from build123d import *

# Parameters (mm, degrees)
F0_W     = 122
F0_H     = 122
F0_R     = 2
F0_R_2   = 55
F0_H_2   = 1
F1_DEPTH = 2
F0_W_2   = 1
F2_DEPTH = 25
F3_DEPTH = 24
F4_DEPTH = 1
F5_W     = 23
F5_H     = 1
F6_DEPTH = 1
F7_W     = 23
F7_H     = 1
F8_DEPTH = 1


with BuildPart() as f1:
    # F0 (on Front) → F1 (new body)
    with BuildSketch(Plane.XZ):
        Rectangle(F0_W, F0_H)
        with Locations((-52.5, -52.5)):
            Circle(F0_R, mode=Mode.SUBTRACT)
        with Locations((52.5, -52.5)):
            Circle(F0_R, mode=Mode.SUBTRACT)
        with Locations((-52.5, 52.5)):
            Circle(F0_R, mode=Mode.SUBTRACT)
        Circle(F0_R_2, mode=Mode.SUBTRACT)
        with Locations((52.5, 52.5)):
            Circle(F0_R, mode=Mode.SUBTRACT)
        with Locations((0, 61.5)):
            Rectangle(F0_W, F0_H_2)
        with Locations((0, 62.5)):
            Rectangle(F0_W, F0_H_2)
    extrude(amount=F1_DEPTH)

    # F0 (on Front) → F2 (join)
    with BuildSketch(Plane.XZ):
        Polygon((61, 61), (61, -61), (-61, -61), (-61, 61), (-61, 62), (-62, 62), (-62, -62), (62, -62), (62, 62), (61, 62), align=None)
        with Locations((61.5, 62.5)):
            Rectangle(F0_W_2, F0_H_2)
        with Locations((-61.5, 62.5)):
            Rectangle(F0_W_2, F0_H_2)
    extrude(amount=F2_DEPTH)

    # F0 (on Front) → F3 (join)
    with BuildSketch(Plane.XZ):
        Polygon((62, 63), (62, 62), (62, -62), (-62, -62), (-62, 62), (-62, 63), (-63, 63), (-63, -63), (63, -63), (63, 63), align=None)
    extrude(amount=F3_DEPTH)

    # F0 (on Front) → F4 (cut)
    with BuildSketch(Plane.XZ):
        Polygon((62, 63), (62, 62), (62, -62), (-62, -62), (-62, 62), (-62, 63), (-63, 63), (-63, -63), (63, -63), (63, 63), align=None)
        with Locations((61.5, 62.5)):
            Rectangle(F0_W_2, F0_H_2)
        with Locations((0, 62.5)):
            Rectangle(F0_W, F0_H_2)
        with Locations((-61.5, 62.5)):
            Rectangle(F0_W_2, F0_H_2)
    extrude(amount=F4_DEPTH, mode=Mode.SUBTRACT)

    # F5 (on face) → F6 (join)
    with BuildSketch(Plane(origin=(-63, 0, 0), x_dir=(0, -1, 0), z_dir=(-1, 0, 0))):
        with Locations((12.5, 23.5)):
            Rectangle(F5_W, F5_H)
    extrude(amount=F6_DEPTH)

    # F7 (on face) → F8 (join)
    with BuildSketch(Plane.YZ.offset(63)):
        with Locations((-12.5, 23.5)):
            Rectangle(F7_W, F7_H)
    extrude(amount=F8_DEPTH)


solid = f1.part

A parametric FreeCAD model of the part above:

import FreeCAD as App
import Part
import Sketcher

V = App.Vector
Q = App.Units.Quantity


def add_polygon(sketch, points):
    """Adds a closed chain of lines whose ends are joined by coincident constraints."""
    first, n = sketch.GeometryCount, len(points)
    for a, b in zip(points, points[1:] + points[:1]):
        sketch.addGeometry(Part.LineSegment(App.Vector(*a, 0), App.Vector(*b, 0)), False)
    for i in range(n):
        sketch.addConstraint(Sketcher.Constraint("Coincident", first + i, 2, first + (i + 1) % n, 1))

doc = App.newDocument("Part")
params = doc.addObject("Spreadsheet::Sheet", "Params")
for row, (alias, value) in enumerate([
    ("sketch1_diameter", "4 mm"),
    ("sketch1_diameter2", "110 mm"),
    ("sketch1_width", "122 mm"),
    ("sketch1_height", "124 mm"),
    ("pad1_length", "2 mm"),
    ("sketch2_width", "122 mm"),
    ("sketch2_width2", "1 mm"),
    ("sketch2_height", "125 mm"),
    ("pad2_length", "25 mm"),
    ("sketch3_width", "124 mm"),
    ("sketch3_width2", "1 mm"),
    ("sketch3_height", "125 mm"),
    ("pad3_length", "24 mm"),
    ("sketch4_width", "126 mm"),
    ("sketch4_width2", "124 mm"),
    ("pocket1_length", "1 mm"),
    ("sketch5_width", "23 mm"),
    ("sketch5_height", "1 mm"),
    ("pad4_length", "1 mm"),
    ("sketch6_width", "23 mm"),
    ("sketch6_height", "1 mm"),
    ("pad5_length", "1 mm"),
], start=1):
    params.set(f"A{row}", alias)
    params.set(f"B{row}", "=" + value)
    params.setAlias(f"B{row}", alias)

body = doc.addObject("PartDesign::Body", "Body")

# Sketch on XZ plane
sketch1 = body.newObject("Sketcher::SketchObject", "Sketch")
sketch1.AttachmentSupport = (doc.getObject("XZ_Plane"), [""])
sketch1.MapMode = "FlatFace"
add_polygon(sketch1, [(-61, -61), (61, -61), (61, 63), (-61, 63)])  # lines 0-3
sketch1.addGeometry(Part.Circle(V(-52.5, -52.5, 0), V(0, 0, 1), 2), False)  # 4
sketch1.addGeometry(Part.Circle(V(52.5, -52.5, 0), V(0, 0, 1), 2), False)  # 5
sketch1.addGeometry(Part.Circle(V(-52.5, 52.5, 0), V(0, 0, 1), 2), False)  # 6
sketch1.addGeometry(Part.Circle(V(0, 0, 0), V(0, 0, 1), 55), False)  # 7
sketch1.addGeometry(Part.Circle(V(52.5, 52.5, 0), V(0, 0, 1), 2), False)  # 8
sketch1.addConstraint([
    Sketcher.Constraint("Horizontal", 0),
    Sketcher.Constraint("Vertical", 1),
    Sketcher.Constraint("Horizontal", 2),
    Sketcher.Constraint("Vertical", 3),
    Sketcher.Constraint("Coincident", 7, 3, -1, 1),
    Sketcher.Constraint("Equal", 4, 5),
    Sketcher.Constraint("Equal", 5, 6),
    Sketcher.Constraint("Equal", 6, 8),
    Sketcher.Constraint("Symmetric", 5, 3, 6, 3, -1, 1),
    Sketcher.Constraint("Symmetric", 4, 3, 8, 3, -1, 1),
    Sketcher.Constraint("Symmetric", 4, 3, 5, 3, -2),
    Sketcher.Constraint("Diameter", 4, Q("4 mm")),
    Sketcher.Constraint("Diameter", 7, Q("110 mm")),
    Sketcher.Constraint("DistanceX", 0, 1, 0, 2, Q("122 mm")),
    Sketcher.Constraint("DistanceY", 1, 1, 1, 2, Q("124 mm")),
    Sketcher.Constraint("DistanceX", -1, 1, 0, 2, Q("61 mm")),
    Sketcher.Constraint("DistanceY", 0, 2, -1, 1, Q("61 mm")),
    Sketcher.Constraint("DistanceX", 4, 3, 5, 3, Q("105 mm")),
    Sketcher.Constraint("DistanceY", 4, 3, 6, 3, Q("105 mm")),
])
sketch1.setExpression("Constraints[15]", "Params.sketch1_diameter")
sketch1.setExpression("Constraints[16]", "Params.sketch1_diameter2")
sketch1.setExpression("Constraints[17]", "Params.sketch1_width")
sketch1.setExpression("Constraints[18]", "Params.sketch1_height")
pad1 = body.newObject("PartDesign::Pad", "Pad")
pad1.Profile = sketch1
pad1.setExpression("Length", "Params.pad1_length")

# Sketch on XZ plane
sketch2 = body.newObject("Sketcher::SketchObject", "Sketch001")
sketch2.AttachmentSupport = (doc.getObject("XZ_Plane"), [""])
sketch2.MapMode = "FlatFace"
add_polygon(sketch2, [(61, -61), (-61, -61), (-61, 63), (-62, 63), (-62, -62), (62, -62), (62, 63), (61, 63)])  # lines 0-7
sketch2.addConstraint([
    Sketcher.Constraint("Horizontal", 0),
    Sketcher.Constraint("Vertical", 1),
    Sketcher.Constraint("Horizontal", 2),
    Sketcher.Constraint("Vertical", 3),
    Sketcher.Constraint("Horizontal", 4),
    Sketcher.Constraint("Vertical", 5),
    Sketcher.Constraint("Horizontal", 6),
    Sketcher.Constraint("Vertical", 7),
    Sketcher.Constraint("Symmetric", 2, 2, 5, 2, -2),
    Sketcher.Constraint("Equal", 2, 6),
    Sketcher.Constraint("Equal", 4, 1),
    Sketcher.Constraint("DistanceX", 0, 2, 0, 1, Q("122 mm")),
    Sketcher.Constraint("DistanceX", 2, 2, 2, 1, Q("1 mm")),
    Sketcher.Constraint("DistanceY", 3, 2, 3, 1, Q("125 mm")),
    Sketcher.Constraint("DistanceY", 0, 2, -1, 1, Q("61 mm")),
])
sketch2.setExpression("Constraints[19]", "Params.sketch2_width")
sketch2.setExpression("Constraints[20]", "Params.sketch2_width2")
sketch2.setExpression("Constraints[21]", "Params.sketch2_height")
pad2 = body.newObject("PartDesign::Pad", "Pad001")
pad2.Profile = sketch2
pad2.setExpression("Length", "Params.pad2_length")

# Sketch on XZ plane
sketch3 = body.newObject("Sketcher::SketchObject", "Sketch002")
sketch3.AttachmentSupport = (doc.getObject("XZ_Plane"), [""])
sketch3.MapMode = "FlatFace"
add_polygon(sketch3, [(62, 63), (62, -62), (-62, -62), (-62, 63), (-63, 63), (-63, -63), (63, -63), (63, 63)])  # lines 0-7
sketch3.addConstraint([
    Sketcher.Constraint("Vertical", 0),
    Sketcher.Constraint("Horizontal", 1),
    Sketcher.Constraint("Vertical", 2),
    Sketcher.Constraint("Horizontal", 3),
    Sketcher.Constraint("Vertical", 4),
    Sketcher.Constraint("Horizontal", 5),
    Sketcher.Constraint("Vertical", 6),
    Sketcher.Constraint("Horizontal", 7),
    Sketcher.Constraint("Symmetric", 3, 2, 5, 2, -1, 1),
    Sketcher.Constraint("Symmetric", 2, 2, 7, 2, -2),
    Sketcher.Constraint("Equal", 5, 4),
    Sketcher.Constraint("DistanceX", 1, 2, 1, 1, Q("124 mm")),
    Sketcher.Constraint("DistanceX", 3, 2, 3, 1, Q("1 mm")),
    Sketcher.Constraint("DistanceY", 0, 2, 0, 1, Q("125 mm")),
])
sketch3.setExpression("Constraints[19]", "Params.sketch3_width")
sketch3.setExpression("Constraints[20]", "Params.sketch3_width2")
sketch3.setExpression("Constraints[21]", "Params.sketch3_height")
pad3 = body.newObject("PartDesign::Pad", "Pad002")
pad3.Profile = sketch3
pad3.setExpression("Length", "Params.pad3_length")

# Sketch on XZ plane
sketch4 = body.newObject("Sketcher::SketchObject", "Sketch003")
sketch4.AttachmentSupport = (doc.getObject("XZ_Plane"), [""])
sketch4.MapMode = "FlatFace"
add_polygon(sketch4, [(-63, 63), (-63, -63), (63, -63), (63, 63)])  # lines 0-3
add_polygon(sketch4, [(62, 62), (62, -62), (-62, -62), (-62, 62)])  # lines 4-7
sketch4.addConstraint([
    Sketcher.Constraint("Vertical", 0),
    Sketcher.Constraint("Horizontal", 1),
    Sketcher.Constraint("Vertical", 2),
    Sketcher.Constraint("Horizontal", 3),
    Sketcher.Constraint("Vertical", 4),
    Sketcher.Constraint("Horizontal", 5),
    Sketcher.Constraint("Vertical", 6),
    Sketcher.Constraint("Horizontal", 7),
    Sketcher.Constraint("Symmetric", 0, 2, 2, 2, -1, 1),
    Sketcher.Constraint("Symmetric", 4, 2, 6, 2, -1, 1),
    Sketcher.Constraint("Equal", 3, 0),
    Sketcher.Constraint("Equal", 7, 4),
    Sketcher.Constraint("DistanceX", 1, 1, 1, 2, Q("126 mm")),
    Sketcher.Constraint("DistanceX", 5, 2, 5, 1, Q("124 mm")),
])
sketch4.setExpression("Constraints[20]", "Params.sketch4_width")
sketch4.setExpression("Constraints[21]", "Params.sketch4_width2")
pocket1 = body.newObject("PartDesign::Pocket", "Pocket")
pocket1.Profile = sketch4
pocket1.setExpression("Length", "Params.pocket1_length")
pocket1.Reversed = True

# Sketch on YZ plane
sketch5 = body.newObject("Sketcher::SketchObject", "Sketch004")
sketch5.AttachmentSupport = (doc.getObject("YZ_Plane"), [""])
sketch5.MapMode = "FlatFace"
sketch5.AttachmentOffset = App.Placement(V(0, 0, -63), App.Rotation())
add_polygon(sketch5, [(-1, 24), (-1, 23), (-24, 23), (-24, 24)])  # lines 0-3
sketch5.addConstraint([
    Sketcher.Constraint("Vertical", 0),
    Sketcher.Constraint("Horizontal", 1),
    Sketcher.Constraint("Vertical", 2),
    Sketcher.Constraint("Horizontal", 3),
    Sketcher.Constraint("DistanceX", 1, 2, 1, 1, Q("23 mm")),
    Sketcher.Constraint("DistanceY", 0, 2, 0, 1, Q("1 mm")),
    Sketcher.Constraint("DistanceX", 0, 2, -1, 1, Q("1 mm")),
    Sketcher.Constraint("DistanceY", -1, 1, 0, 2, Q("23 mm")),
])
sketch5.setExpression("Constraints[8]", "Params.sketch5_width")
sketch5.setExpression("Constraints[9]", "Params.sketch5_height")
pad4 = body.newObject("PartDesign::Pad", "Pad003")
pad4.Profile = sketch5
pad4.setExpression("Length", "Params.pad4_length")
pad4.Reversed = True

# Sketch on YZ plane
sketch6 = body.newObject("Sketcher::SketchObject", "Sketch005")
sketch6.AttachmentSupport = (doc.getObject("YZ_Plane"), [""])
sketch6.MapMode = "FlatFace"
sketch6.AttachmentOffset = App.Placement(V(0, 0, 63), App.Rotation())
add_polygon(sketch6, [(-24, 24), (-24, 23), (-1, 23), (-1, 24)])  # lines 0-3
sketch6.addConstraint([
    Sketcher.Constraint("Vertical", 0),
    Sketcher.Constraint("Horizontal", 1),
    Sketcher.Constraint("Vertical", 2),
    Sketcher.Constraint("Horizontal", 3),
    Sketcher.Constraint("DistanceX", 1, 1, 1, 2, Q("23 mm")),
    Sketcher.Constraint("DistanceY", 0, 2, 0, 1, Q("1 mm")),
    Sketcher.Constraint("DistanceX", 0, 2, -1, 1, Q("24 mm")),
    Sketcher.Constraint("DistanceY", -1, 1, 0, 2, Q("23 mm")),
])
sketch6.setExpression("Constraints[8]", "Params.sketch6_width")
sketch6.setExpression("Constraints[9]", "Params.sketch6_height")
pad5 = body.newObject("PartDesign::Pad", "Pad004")
pad5.Profile = sketch6
pad5.setExpression("Length", "Params.pad5_length")

doc.recompute()
